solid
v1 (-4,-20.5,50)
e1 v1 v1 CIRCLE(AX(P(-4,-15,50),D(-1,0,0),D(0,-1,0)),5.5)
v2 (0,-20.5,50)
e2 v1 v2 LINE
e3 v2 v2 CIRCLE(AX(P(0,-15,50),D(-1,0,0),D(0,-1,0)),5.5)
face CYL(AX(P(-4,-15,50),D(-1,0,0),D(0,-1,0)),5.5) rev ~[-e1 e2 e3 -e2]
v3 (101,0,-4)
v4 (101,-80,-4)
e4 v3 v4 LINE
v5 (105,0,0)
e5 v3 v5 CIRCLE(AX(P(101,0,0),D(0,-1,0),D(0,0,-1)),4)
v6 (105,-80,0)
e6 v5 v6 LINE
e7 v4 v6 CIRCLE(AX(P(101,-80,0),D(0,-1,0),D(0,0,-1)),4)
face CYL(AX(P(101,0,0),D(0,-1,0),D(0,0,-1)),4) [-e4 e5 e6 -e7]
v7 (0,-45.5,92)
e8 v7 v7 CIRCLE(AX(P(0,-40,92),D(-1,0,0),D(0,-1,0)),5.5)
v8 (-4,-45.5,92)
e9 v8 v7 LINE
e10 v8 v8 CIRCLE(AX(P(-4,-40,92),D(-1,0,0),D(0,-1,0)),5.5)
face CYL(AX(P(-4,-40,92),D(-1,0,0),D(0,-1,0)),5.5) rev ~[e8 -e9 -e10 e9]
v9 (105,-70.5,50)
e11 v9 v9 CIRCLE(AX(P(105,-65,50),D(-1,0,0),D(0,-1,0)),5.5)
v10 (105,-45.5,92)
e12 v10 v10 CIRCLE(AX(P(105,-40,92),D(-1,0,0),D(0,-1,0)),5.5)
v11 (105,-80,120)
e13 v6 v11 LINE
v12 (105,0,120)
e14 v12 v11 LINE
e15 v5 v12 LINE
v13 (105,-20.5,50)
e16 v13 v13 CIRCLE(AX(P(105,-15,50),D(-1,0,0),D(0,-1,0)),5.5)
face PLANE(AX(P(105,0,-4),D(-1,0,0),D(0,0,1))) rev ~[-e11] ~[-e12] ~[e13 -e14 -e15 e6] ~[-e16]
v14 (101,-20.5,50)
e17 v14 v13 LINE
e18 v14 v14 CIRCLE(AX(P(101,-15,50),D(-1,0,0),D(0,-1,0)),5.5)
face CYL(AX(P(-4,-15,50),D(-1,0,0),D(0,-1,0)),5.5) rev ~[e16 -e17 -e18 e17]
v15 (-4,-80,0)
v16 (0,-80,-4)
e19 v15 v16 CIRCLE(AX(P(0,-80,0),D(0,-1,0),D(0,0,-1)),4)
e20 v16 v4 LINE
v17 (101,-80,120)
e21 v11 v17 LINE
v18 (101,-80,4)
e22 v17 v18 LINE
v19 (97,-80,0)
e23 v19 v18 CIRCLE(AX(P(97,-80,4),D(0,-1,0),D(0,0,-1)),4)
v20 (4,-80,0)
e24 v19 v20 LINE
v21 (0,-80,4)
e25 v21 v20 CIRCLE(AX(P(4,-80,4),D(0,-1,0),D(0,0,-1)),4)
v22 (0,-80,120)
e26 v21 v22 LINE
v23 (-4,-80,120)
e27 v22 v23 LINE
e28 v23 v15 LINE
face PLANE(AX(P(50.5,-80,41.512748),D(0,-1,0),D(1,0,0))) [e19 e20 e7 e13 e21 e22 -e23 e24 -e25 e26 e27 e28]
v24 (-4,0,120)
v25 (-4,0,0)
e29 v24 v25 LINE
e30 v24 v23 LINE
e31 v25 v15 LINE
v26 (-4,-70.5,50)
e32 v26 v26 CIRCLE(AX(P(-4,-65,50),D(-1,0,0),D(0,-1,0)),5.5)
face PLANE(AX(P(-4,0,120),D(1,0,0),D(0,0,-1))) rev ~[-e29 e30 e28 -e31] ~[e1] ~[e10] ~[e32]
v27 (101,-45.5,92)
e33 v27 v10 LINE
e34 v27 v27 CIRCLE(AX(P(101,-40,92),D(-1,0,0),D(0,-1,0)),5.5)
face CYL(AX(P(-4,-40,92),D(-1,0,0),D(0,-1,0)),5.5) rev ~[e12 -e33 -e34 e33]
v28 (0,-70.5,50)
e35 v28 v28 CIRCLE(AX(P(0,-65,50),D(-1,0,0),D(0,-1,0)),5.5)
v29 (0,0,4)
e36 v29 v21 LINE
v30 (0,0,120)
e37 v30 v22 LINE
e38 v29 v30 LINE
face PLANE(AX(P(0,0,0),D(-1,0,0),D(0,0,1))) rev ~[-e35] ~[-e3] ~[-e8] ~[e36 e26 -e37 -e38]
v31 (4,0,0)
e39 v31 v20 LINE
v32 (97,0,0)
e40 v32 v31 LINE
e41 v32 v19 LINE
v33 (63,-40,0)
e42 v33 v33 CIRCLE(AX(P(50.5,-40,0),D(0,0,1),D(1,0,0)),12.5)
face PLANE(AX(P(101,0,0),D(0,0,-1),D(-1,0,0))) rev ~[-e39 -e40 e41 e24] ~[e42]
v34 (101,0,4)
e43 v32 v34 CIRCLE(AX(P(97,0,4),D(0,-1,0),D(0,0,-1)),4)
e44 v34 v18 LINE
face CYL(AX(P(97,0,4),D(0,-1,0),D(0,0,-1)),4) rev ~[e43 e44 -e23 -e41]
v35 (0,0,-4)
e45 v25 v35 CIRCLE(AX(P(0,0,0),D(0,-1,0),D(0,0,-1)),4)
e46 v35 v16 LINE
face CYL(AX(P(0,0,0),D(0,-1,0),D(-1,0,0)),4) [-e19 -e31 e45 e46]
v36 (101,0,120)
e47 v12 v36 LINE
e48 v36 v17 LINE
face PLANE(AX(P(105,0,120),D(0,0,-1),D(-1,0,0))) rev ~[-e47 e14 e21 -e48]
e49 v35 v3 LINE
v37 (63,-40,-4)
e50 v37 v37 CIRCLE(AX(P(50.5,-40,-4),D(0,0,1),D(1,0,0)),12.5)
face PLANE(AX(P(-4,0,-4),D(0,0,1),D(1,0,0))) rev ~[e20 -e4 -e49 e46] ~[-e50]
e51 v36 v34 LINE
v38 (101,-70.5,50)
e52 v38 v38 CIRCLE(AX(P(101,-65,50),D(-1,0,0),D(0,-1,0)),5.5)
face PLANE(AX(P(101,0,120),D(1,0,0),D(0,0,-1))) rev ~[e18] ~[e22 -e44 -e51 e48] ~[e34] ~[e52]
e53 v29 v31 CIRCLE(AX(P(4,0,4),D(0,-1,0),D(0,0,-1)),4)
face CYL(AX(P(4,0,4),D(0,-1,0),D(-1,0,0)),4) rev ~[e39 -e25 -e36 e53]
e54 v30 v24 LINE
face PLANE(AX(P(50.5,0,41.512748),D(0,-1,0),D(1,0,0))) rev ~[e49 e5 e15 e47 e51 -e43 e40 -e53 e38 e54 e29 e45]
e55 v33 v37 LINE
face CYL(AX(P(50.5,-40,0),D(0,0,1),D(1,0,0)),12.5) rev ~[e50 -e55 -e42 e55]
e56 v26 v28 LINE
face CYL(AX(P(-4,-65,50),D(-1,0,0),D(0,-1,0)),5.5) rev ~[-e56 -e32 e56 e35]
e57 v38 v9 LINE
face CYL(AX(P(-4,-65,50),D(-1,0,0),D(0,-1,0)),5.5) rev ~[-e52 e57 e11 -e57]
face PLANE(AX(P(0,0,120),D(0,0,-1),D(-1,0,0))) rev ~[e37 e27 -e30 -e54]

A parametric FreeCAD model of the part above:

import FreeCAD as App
import Part
import Sketcher

V = App.Vector
Q = App.Units.Quantity


def edges_at(feature, points):
    """Names of the edges that pass closest to the given points."""
    edges = feature.Shape.Edges
    near = lambda p: min(range(len(edges)), key=lambda i: edges[i].distToShape(Part.Vertex(*p))[0])
    return sorted({f"Edge{near(p) + 1}" for p in points})

doc = App.newDocument("Part")
body = doc.addObject("PartDesign::Body", "Body")

# Sketch on XZ plane
sketch1 = body.newObject("Sketcher::SketchObject", "Sketch")
sketch1.AttachmentSupport = (doc.getObject("XZ_Plane"), [""])
sketch1.MapMode = "FlatFace"
sketch1.addGeometry(Part.LineSegment(V(0, 0, 0), V(0, 120, 0)), False)
sketch1.addGeometry(Part.LineSegment(V(0, 120, 0), V(-4, 120, 0)), False)
sketch1.addGeometry(Part.LineSegment(V(-4, 120, 0), V(-4, -4, 0)), False)
sketch1.addGeometry(Part.LineSegment(V(-4, -4, 0), V(105, -4, 0)), False)
sketch1.addGeometry(Part.LineSegment(V(105, -4, 0), V(105, 120, 0)), False)
sketch1.addGeometry(Part.LineSegment(V(105, 120, 0), V(101, 120, 0)), False)
sketch1.addGeometry(Part.LineSegment(V(101, 120, 0), V(101, 0, 0)), False)
sketch1.addGeometry(Part.LineSegment(V(101, 0, 0), V(0, 0, 0)), False)
sketch1.addConstraint(Sketcher.Constraint("Coincident", 0, 2, 1, 1))
sketch1.addConstraint(Sketcher.Constraint("Coincident", 1, 2, 2, 1))
sketch1.addConstraint(Sketcher.Constraint("Coincident", 2, 2, 3, 1))
sketch1.addConstraint(Sketcher.Constraint("Coincident", 3, 2, 4, 1))
sketch1.addConstraint(Sketcher.Constraint("Coincident", 4, 2, 5, 1))
sketch1.addConstraint(Sketcher.Constraint("Coincident", 5, 2, 6, 1))
sketch1.addConstraint(Sketcher.Constraint("Coincident", 6, 2, 7, 1))
sketch1.addConstraint(Sketcher.Constraint("Coincident", 7, 2, 0, 1))
sketch1.addConstraint(Sketcher.Constraint("Vertical", 0))
sketch1.addConstraint(Sketcher.Constraint("Horizontal", 1))
sketch1.addConstraint(Sketcher.Constraint("Vertical", 2))
sketch1.addConstraint(Sketcher.Constraint("Horizontal", 3))
sketch1.addConstraint(Sketcher.Constraint("Vertical", 4))
sketch1.addConstraint(Sketcher.Constraint("Horizontal", 5))
sketch1.addConstraint(Sketcher.Constraint("Vertical", 6))
sketch1.addConstraint(Sketcher.Constraint("Horizontal", 7))
sketch1.addConstraint(Sketcher.Constraint("Coincident", 7, 2, -1, 1))
sketch1.addConstraint(Sketcher.Constraint("Horizontal", 1, 2, 4, 2))
sketch1.addConstraint(Sketcher.Constraint("Equal", 1, 5))
sketch1.addConstraint(Sketcher.Constraint("DistanceX", 1, 2, 1, 1, Q("4 mm")))
sketch1.addConstraint(Sketcher.Constraint("DistanceX", 3, 1, 3, 2, Q("109 mm")))
sketch1.addConstraint(Sketcher.Constraint("DistanceY", 0, 1, 0, 2, Q("120 mm")))
sketch1.addConstraint(Sketcher.Constraint("DistanceY", 2, 2, 2, 1, Q("124 mm")))
pad1 = body.newObject("PartDesign::Pad", "Pad")
pad1.Profile = sketch1
pad1.Length = 80

# Sketch on XY plane
sketch2 = body.newObject("Sketcher::SketchObject", "Sketch001")
sketch2.AttachmentSupport = (doc.getObject("XY_Plane"), [""])
sketch2.MapMode = "FlatFace"
sketch2.addGeometry(Part.Circle(V(50.5, -40, 0), V(0, 0, 1), 12.5), False)
sketch2.addConstraint(Sketcher.Constraint("Diameter", 0, Q("25 mm")))
sketch2.addConstraint(Sketcher.Constraint("DistanceY", 0, 3, -1, 1, Q("40 mm")))
sketch2.addConstraint(Sketcher.Constraint("DistanceX", -1, 1, 0, 3, Q("50.5 mm")))
pocket1 = body.newObject("PartDesign::Pocket", "Pocket")
pocket1.Profile = sketch2
pocket1.Type = "ThroughAll"

# Sketch on YZ plane
sketch3 = body.newObject("Sketcher::SketchObject", "Sketch002")
sketch3.AttachmentSupport = (doc.getObject("YZ_Plane"), [""])
sketch3.MapMode = "FlatFace"
sketch3.AttachmentOffset = App.Placement(V(0, 0, -4), App.Rotation())
sketch3.addGeometry(Part.Circle(V(-65, 50, 0), V(0, 0, 1), 5.5), False)
sketch3.addGeometry(Part.Circle(V(-40, 92, 0), V(0, 0, 1), 5.5), False)
sketch3.addGeometry(Part.Circle(V(-15, 50, 0), V(0, 0, 1), 5.5), False)
sketch3.addConstraint(Sketcher.Constraint("Equal", 0, 1))
sketch3.addConstraint(Sketcher.Constraint("Equal", 1, 2))
sketch3.addConstraint(Sketcher.Constraint("Horizontal", 0, 3, 2, 3))
sketch3.addConstraint(Sketcher.Constraint("Diameter", 0, Q("11 mm")))
sketch3.addConstraint(Sketcher.Constraint("DistanceX", 0, 3, -1, 1, Q("65 mm")))
sketch3.addConstraint(Sketcher.Constraint("DistanceY", -1, 1, 0, 3, Q("50 mm")))
sketch3.addConstraint(Sketcher.Constraint("DistanceX", 1, 3, -1, 1, Q("40 mm")))
sketch3.addConstraint(Sketcher.Constraint("DistanceY", -1, 1, 1, 3, Q("92 mm")))
sketch3.addConstraint(Sketcher.Constraint("DistanceX", 2, 3, -1, 1, Q("15 mm")))
pocket2 = body.newObject("PartDesign::Pocket", "Pocket001")
pocket2.Profile = sketch3
pocket2.Type = "ThroughAll"
pocket2.Reversed = True
doc.recompute()

fillet = body.newObject("PartDesign::Fillet", "Fillet")
fillet.Base = (pocket2, edges_at(pocket2, [
    (0, -40, 0),
    (101, -40, 0),
    (-4, -40, -4),
    (105, -40, -4),
]))
fillet.Radius = 4

doc.recompute()
